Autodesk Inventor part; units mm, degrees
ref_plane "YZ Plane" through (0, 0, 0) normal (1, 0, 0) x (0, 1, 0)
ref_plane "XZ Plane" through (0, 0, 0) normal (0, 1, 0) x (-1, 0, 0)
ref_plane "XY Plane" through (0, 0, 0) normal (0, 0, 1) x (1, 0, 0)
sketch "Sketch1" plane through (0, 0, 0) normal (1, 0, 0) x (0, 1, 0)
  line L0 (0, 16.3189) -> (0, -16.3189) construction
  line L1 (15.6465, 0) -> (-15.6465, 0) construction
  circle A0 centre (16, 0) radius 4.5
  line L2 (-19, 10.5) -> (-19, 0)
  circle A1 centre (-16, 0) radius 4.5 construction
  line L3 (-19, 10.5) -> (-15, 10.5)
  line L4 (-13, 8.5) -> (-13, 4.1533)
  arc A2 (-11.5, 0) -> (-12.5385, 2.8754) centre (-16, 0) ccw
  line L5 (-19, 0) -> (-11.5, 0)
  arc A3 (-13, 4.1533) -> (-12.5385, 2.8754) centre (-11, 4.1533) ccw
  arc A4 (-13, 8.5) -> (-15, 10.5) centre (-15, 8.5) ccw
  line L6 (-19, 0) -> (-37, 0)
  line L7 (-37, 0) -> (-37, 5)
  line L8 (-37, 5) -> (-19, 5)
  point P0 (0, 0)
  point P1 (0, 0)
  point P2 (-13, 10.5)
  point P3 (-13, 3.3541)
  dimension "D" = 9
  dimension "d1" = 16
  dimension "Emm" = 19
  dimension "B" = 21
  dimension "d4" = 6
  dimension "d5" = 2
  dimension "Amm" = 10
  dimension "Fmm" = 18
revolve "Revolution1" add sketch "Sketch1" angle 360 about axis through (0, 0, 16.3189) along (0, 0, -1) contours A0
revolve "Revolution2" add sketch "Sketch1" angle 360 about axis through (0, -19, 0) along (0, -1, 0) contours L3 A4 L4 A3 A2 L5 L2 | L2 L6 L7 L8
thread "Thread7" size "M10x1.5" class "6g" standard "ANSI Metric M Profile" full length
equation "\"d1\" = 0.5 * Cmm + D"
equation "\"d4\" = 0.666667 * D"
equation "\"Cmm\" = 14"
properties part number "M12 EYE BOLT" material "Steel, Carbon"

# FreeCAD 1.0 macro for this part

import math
import FreeCAD as App
import Part
import Sketcher

V = App.Vector

doc = App.newDocument("Part")
body = doc.addObject("PartDesign::Body", "Body")

# Sketch on YZ plane
sketch1 = body.newObject("Sketcher::SketchObject", "Sketch")
sketch1.AttachmentSupport = (doc.getObject("YZ_Plane"), [""])
sketch1.MapMode = "FlatFace"
sketch1.addGeometry(Part.Circle(V(16, 0, 0), V(0, 0, 1), 4.5), False)
sketch1.addConstraint(Sketcher.Constraint("PointOnObject", 0, 3, -1))
sketch1.addConstraint(Sketcher.Constraint("Diameter", 0, 9.0))
sketch1.addConstraint(Sketcher.Constraint("DistanceX", -1, 1, 0, 3, 16.0))
revolution = body.newObject("PartDesign::Revolution", "Revolution")
revolution.Profile = sketch1
revolution.ReferenceAxis = (sketch1, ["V_Axis"])
revolution.Angle = 360

# Sketch on YZ plane
sketch2 = body.newObject("Sketcher::SketchObject", "Sketch001")
sketch2.AttachmentSupport = (doc.getObject("YZ_Plane"), [""])
sketch2.MapMode = "FlatFace"
sketch2.addGeometry(Part.LineSegment(V(-15, 10.5, 0), V(-19, 10.5, 0)), False)
sketch2.addGeometry(Part.LineSegment(V(-19, 10.5, 0), V(-19, 5, 0)), False)
sketch2.addGeometry(Part.LineSegment(V(-19, 5, 0), V(-37, 5, 0)), False)
sketch2.addGeometry(Part.LineSegment(V(-37, 5, 0), V(-37, 0, 0)), False)
sketch2.addGeometry(Part.LineSegment(V(-37, 0, 0), V(-11.5, 0, 0)), False)
sketch2.addGeometry(Part.ArcOfCircle(Part.Circle(V(-16, 0, 0), V(0, 0, 1), 4.5), math.radians(0), math.radians(39.715746)), False)
sketch2.addGeometry(Part.ArcOfCircle(Part.Circle(V(-11, 4.1533, 0), V(0, 0, 1), 2), math.radians(180), math.radians(219.713505)), False)
sketch2.addGeometry(Part.LineSegment(V(-13, 4.1533, 0), V(-13, 8.5, 0)), False)
sketch2.addGeometry(Part.ArcOfCircle(Part.Circle(V(-15, 8.5, 0), V(0, 0, 1), 2), math.radians(0), math.radians(90)), False)
sketch2.addConstraint(Sketcher.Constraint("Coincident", 0, 2, 1, 1))
sketch2.addConstraint(Sketcher.Constraint("Coincident", 1, 2, 2, 1))
sketch2.addConstraint(Sketcher.Constraint("Coincident", 2, 2, 3, 1))
sketch2.addConstraint(Sketcher.Constraint("Coincident", 3, 2, 4, 1))
sketch2.addConstraint(Sketcher.Constraint("Coincident", 4, 2, 5, 1))
sketch2.addConstraint(Sketcher.Constraint("Tangent", 5, 2, 6, 2))
sketch2.addConstraint(Sketcher.Constraint("Tangent", 6, 1, 7, 1))
sketch2.addConstraint(Sketcher.Constraint("Tangent", 7, 2, 8, 1))
sketch2.addConstraint(Sketcher.Constraint("Tangent", 8, 2, 0, 1))
sketch2.addConstraint(Sketcher.Constraint("Horizontal", 0))
sketch2.addConstraint(Sketcher.Constraint("Vertical", 1))
sketch2.addConstraint(Sketcher.Constraint("Horizontal", 2))
sketch2.addConstraint(Sketcher.Constraint("Vertical", 3))
sketch2.addConstraint(Sketcher.Constraint("Horizontal", 4))
sketch2.addConstraint(Sketcher.Constraint("Vertical", 7))
sketch2.addConstraint(Sketcher.Constraint("Equal", 6, 8))
sketch2.addConstraint(Sketcher.Constraint("PointOnObject", 5, 3, -1))
sketch2.addConstraint(Sketcher.Constraint("PointOnObject", 3, 2, -1))
sketch2.addConstraint(Sketcher.Constraint("Radius", 6, 2.0))
sketch2.addConstraint(Sketcher.Constraint("Radius", 5, 4.5))
sketch2.addConstraint(Sketcher.Constraint("DistanceX", 2, 2, 2, 1, 18.0))
sketch2.addConstraint(Sketcher.Constraint("DistanceX", 5, 3, -1, 1, 16.0))
sketch2.addConstraint(Sketcher.Constraint("DistanceX", 0, 2, -1, 1, 19.0))
sketch2.addConstraint(Sketcher.Constraint("DistanceX", 0, 2, 7, 2, 6.0))
sketch2.addConstraint(Sketcher.Constraint("DistanceY", 3, 2, 3, 1, 5.0))
sketch2.addConstraint(Sketcher.Constraint("DistanceY", 1, 2, 1, 1, 5.5))
revolution2 = body.newObject("PartDesign::Revolution", "Revolution001")
revolution2.Profile = sketch2
revolution2.ReferenceAxis = (sketch2, ["H_Axis"])
revolution2.Angle = 360

doc.recompute()
